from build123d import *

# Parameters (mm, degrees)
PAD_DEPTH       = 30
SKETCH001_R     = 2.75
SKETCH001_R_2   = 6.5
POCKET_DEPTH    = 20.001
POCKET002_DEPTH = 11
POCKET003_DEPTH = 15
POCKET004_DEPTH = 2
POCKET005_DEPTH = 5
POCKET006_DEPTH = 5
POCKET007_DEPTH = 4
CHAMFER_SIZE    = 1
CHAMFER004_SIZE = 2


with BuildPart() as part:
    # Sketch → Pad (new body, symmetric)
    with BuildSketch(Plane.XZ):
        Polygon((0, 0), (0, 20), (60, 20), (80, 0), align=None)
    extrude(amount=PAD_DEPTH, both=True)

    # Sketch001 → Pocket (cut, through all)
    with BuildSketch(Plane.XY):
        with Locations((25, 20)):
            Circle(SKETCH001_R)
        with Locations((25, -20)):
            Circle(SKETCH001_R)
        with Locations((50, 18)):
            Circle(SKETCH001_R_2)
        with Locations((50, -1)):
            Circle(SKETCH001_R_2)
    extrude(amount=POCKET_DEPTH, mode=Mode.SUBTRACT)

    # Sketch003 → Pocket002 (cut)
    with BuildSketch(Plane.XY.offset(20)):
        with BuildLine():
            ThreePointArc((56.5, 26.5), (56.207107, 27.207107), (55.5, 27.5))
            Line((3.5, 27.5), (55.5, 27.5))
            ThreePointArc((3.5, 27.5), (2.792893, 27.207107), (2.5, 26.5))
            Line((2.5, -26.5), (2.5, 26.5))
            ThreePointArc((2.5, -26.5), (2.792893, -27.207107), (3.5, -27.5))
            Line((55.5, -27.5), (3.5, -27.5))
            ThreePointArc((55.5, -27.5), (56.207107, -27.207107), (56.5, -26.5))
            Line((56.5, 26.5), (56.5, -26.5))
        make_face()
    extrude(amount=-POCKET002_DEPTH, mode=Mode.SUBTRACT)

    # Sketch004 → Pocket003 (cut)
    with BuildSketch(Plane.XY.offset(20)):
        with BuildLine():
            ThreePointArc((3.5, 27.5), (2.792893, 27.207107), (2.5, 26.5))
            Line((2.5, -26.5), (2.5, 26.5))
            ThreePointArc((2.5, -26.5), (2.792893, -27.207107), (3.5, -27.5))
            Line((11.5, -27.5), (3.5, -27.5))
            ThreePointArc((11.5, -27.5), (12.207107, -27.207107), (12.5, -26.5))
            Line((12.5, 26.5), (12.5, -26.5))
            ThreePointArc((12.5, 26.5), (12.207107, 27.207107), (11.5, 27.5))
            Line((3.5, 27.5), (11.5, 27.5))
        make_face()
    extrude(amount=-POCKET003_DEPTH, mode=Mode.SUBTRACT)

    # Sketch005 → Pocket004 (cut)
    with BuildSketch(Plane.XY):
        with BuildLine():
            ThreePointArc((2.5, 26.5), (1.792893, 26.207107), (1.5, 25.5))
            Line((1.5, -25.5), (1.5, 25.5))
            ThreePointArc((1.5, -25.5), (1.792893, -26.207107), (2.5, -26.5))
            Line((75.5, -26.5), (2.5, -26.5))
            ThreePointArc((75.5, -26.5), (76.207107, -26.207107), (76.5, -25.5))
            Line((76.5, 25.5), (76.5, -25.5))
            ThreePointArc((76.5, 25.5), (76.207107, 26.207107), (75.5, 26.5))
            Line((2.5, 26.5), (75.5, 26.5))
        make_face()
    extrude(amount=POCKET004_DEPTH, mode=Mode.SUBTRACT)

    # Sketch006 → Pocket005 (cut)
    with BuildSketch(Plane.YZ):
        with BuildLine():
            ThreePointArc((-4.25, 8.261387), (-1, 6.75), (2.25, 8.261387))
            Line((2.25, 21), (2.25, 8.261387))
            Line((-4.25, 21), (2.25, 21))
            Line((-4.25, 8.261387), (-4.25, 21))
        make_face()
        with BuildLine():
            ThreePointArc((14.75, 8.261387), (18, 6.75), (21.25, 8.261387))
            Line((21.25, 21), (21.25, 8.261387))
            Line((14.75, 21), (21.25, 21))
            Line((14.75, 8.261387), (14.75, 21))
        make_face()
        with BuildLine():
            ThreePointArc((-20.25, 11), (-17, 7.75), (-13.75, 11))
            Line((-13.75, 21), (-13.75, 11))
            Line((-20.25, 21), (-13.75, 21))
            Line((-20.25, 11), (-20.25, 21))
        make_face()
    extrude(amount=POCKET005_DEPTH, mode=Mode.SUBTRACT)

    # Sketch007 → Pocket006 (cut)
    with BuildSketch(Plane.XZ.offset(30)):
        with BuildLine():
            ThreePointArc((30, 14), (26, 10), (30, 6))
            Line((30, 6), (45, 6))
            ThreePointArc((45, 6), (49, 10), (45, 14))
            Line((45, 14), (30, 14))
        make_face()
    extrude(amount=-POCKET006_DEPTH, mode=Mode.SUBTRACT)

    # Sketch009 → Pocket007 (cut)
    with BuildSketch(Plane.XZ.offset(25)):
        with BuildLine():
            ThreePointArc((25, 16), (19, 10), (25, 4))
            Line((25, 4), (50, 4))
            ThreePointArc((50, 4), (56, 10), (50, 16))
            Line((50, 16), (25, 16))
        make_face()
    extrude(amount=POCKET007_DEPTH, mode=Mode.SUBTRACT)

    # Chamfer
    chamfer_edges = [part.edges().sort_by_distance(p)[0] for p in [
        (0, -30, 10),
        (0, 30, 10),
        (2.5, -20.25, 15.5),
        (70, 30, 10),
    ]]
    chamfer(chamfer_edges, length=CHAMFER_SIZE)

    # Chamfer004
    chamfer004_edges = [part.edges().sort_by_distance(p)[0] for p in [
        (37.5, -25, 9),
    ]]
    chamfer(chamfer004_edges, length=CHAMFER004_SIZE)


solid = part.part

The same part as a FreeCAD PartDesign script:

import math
import FreeCAD as App
import Part
import Sketcher

V = App.Vector
Q = App.Units.Quantity


def edges_at(feature, points):
    """Names of the edges that pass closest to the given points."""
    edges = feature.Shape.Edges
    near = lambda p: min(range(len(edges)), key=lambda i: edges[i].distToShape(Part.Vertex(*p))[0])
    return sorted({f"Edge{near(p) + 1}" for p in points})

doc = App.newDocument("Part")
body = doc.addObject("PartDesign::Body", "Body")

sketch1 = body.newObject("Sketcher::SketchObject", "Sketch")
sketch1.AttachmentSupport = (doc.getObject("XZ_Plane"), [""])
sketch1.MapMode = "FlatFace"
sketch1.addGeometry(Part.LineSegment(V(0, 20, 0), V(0, 0, 0)), False)
sketch1.addGeometry(Part.LineSegment(V(0, 0, 0), V(80, 0, 0)), False)
sketch1.addGeometry(Part.LineSegment(V(80, 0, 0), V(60, 20, 0)), False)
sketch1.addGeometry(Part.LineSegment(V(60, 20, 0), V(0, 20, 0)), False)
sketch1.addConstraint(Sketcher.Constraint("Coincident", 0, 2, 1, 1))
sketch1.addConstraint(Sketcher.Constraint("Coincident", 1, 2, 2, 1))
sketch1.addConstraint(Sketcher.Constraint("Coincident", 2, 2, 3, 1))
sketch1.addConstraint(Sketcher.Constraint("Coincident", 3, 2, 0, 1))
sketch1.addConstraint(Sketcher.Constraint("Vertical", 0))
sketch1.addConstraint(Sketcher.Constraint("Horizontal", 1))
sketch1.addConstraint(Sketcher.Constraint("Horizontal", 3))
sketch1.addConstraint(Sketcher.Constraint("Coincident", 0, 2, -1, 1))
sketch1.addConstraint(Sketcher.Constraint("DistanceX", 1, 1, 1, 2, Q("80 mm")))
sketch1.addConstraint(Sketcher.Constraint("DistanceX", 3, 2, 3, 1, Q("60 mm")))
sketch1.addConstraint(Sketcher.Constraint("DistanceY", 0, 2, 0, 1, Q("20 mm")))
pad1 = body.newObject("PartDesign::Pad", "Pad")
pad1.Profile = sketch1
pad1.Length = 60
pad1.Midplane = True

sketch2 = body.newObject("Sketcher::SketchObject", "Sketch001")
sketch2.AttachmentSupport = (doc.getObject("XY_Plane"), [""])
sketch2.MapMode = "FlatFace"
sketch2.addGeometry(Part.Circle(V(25, 20, 0), V(0, 0, 1), 2.8), False)
sketch2.addGeometry(Part.Circle(V(25, -20, 0), V(0, 0, 1), 2.8), False)
sketch2.addGeometry(Part.Circle(V(50, 18, 0), V(0, 0, 1), 6.5), False)
sketch2.addGeometry(Part.Circle(V(50, -1, 0), V(0, 0, 1), 6.5), False)
sketch2.addConstraint(Sketcher.Constraint("Equal", 0, 1))
sketch2.addConstraint(Sketcher.Constraint("Equal", 2, 3))
sketch2.addConstraint(Sketcher.Constraint("Symmetric", 0, 3, 1, 3, -1))
sketch2.addConstraint(Sketcher.Constraint("Vertical", 2, 3, 3, 3))
sketch2.addConstraint(Sketcher.Constraint("Diameter", 2, Q("13 mm")))
sketch2.addConstraint(Sketcher.Constraint("Diameter", 0, Q("5.5 mm")))
sketch2.addConstraint(Sketcher.Constraint("DistanceX", -1, 1, 0, 3, Q("25 mm")))
sketch2.addConstraint(Sketcher.Constraint("DistanceY", -1, 1, 0, 3, Q("20 mm")))
sketch2.addConstraint(Sketcher.Constraint("DistanceX", -1, 1, 2, 3, Q("50 mm")))
sketch2.addConstraint(Sketcher.Constraint("DistanceY", -1, 1, 2, 3, Q("18 mm")))
sketch2.addConstraint(Sketcher.Constraint("DistanceY", 3, 3, -1, 1, Q("1 mm")))
pocket1 = body.newObject("PartDesign::Pocket", "Pocket")
pocket1.Profile = sketch2
pocket1.Type = "ThroughAll"
pocket1.Reversed = True

sketch3 = body.newObject("Sketcher::SketchObject", "Sketch002")
sketch3.AttachmentSupport = (doc.getObject("XY_Plane"), [""])
sketch3.MapMode = "FlatFace"
sketch3.AttachmentOffset = App.Placement(V(0, 0, 20), App.Rotation())
sketch3.addGeometry(Part.ArcOfCircle(Part.Circle(V(55.5, 26.5, 0), V(0, 0, 1), 1), math.radians(0), math.radians(90)), False)
sketch3.addGeometry(Part.LineSegment(V(55.5, 27.5, 0), V(3.5, 27.5, 0)), False)
sketch3.addGeometry(Part.ArcOfCircle(Part.Circle(V(3.5, 26.5, 0), V(0, 0, 1), 1), math.radians(90), math.radians(180)), False)
sketch3.addGeometry(Part.LineSegment(V(2.5, 26.5, 0), V(2.5, -26.5, 0)), False)
sketch3.addGeometry(Part.ArcOfCircle(Part.Circle(V(3.5, -26.5, 0), V(0, 0, 1), 1), math.radians(180), math.radians(270)), False)
sketch3.addGeometry(Part.LineSegment(V(3.5, -27.5, 0), V(55.5, -27.5, 0)), False)
sketch3.addGeometry(Part.ArcOfCircle(Part.Circle(V(55.5, -26.5, 0), V(0, 0, 1), 1), math.radians(-90), math.radians(0)), False)
sketch3.addGeometry(Part.LineSegment(V(56.5, -26.5, 0), V(56.5, 26.5, 0)), False)
sketch3.addConstraint(Sketcher.Constraint("Tangent", 0, 2, 1, 1))
sketch3.addConstraint(Sketcher.Constraint("Tangent", 1, 2, 2, 1))
sketch3.addConstraint(Sketcher.Constraint("Tangent", 2, 2, 3, 1))
sketch3.addConstraint(Sketcher.Constraint("Tangent", 3, 2, 4, 1))
sketch3.addConstraint(Sketcher.Constraint("Tangent", 4, 2, 5, 1))
sketch3.addConstraint(Sketcher.Constraint("Tangent", 5, 2, 6, 1))
sketch3.addConstraint(Sketcher.Constraint("Tangent", 6, 2, 7, 1))
sketch3.addConstraint(Sketcher.Constraint("Tangent", 7, 2, 0, 1))
sketch3.addConstraint(Sketcher.Constraint("Horizontal", 1))
sketch3.addConstraint(Sketcher.Constraint("Vertical", 3))
sketch3.addConstraint(Sketcher.Constraint("Horizontal", 5))
sketch3.addConstraint(Sketcher.Constraint("Vertical", 7))
sketch3.addConstraint(Sketcher.Constraint("Equal", 0, 2))
sketch3.addConstraint(Sketcher.Constraint("Equal", 2, 4))
sketch3.addConstraint(Sketcher.Constraint("Equal", 4, 6))
sketch3.addConstraint(Sketcher.Constraint("Radius", 0, Q("0.999999 mm")))
sketch3.addConstraint(Sketcher.Constraint("DistanceX", 1, 2, 1, 1, Q("52 mm")))
sketch3.addConstraint(Sketcher.Constraint("DistanceY", 3, 2, 3, 1, Q("53 mm")))
sketch3.addConstraint(Sketcher.Constraint("DistanceX", -1, 1, 0, 3, Q("55.500001 mm")))
sketch3.addConstraint(Sketcher.Constraint("DistanceY", -1, 1, 0, 3, Q("26.500001 mm")))
pocket2 = body.newObject("PartDesign::Pocket", "Pocket001")
pocket2.Profile = sketch3
pocket2.Length = 11

sketch4 = body.newObject("Sketcher::SketchObject", "Sketch003")
sketch4.AttachmentSupport = (doc.getObject("XY_Plane"), [""])
sketch4.MapMode = "FlatFace"
sketch4.AttachmentOffset = App.Placement(V(0, 0, 20), App.Rotation())
sketch4.addGeometry(Part.ArcOfCircle(Part.Circle(V(3.5, 26.5, 0), V(0, 0, 1), 1), math.radians(90), math.radians(180)), False)
sketch4.addGeometry(Part.LineSegment(V(2.5, 26.5, 0), V(2.5, -26.5, 0)), False)
sketch4.addGeometry(Part.ArcOfCircle(Part.Circle(V(3.5, -26.5, 0), V(0, 0, 1), 1), math.radians(180), math.radians(270)), False)
sketch4.addGeometry(Part.LineSegment(V(3.5, -27.5, 0), V(11.5, -27.5, 0)), False)
sketch4.addGeometry(Part.ArcOfCircle(Part.Circle(V(11.5, -26.5, 0), V(0, 0, 1), 1), math.radians(-90), math.radians(0)), False)
sketch4.addGeometry(Part.LineSegment(V(12.5, -26.5, 0), V(12.5, 26.5, 0)), False)
sketch4.addGeometry(Part.ArcOfCircle(Part.Circle(V(11.5, 26.5, 0), V(0, 0, 1), 1), math.radians(0), math.radians(90)), False)
sketch4.addGeometry(Part.LineSegment(V(11.5, 27.5, 0), V(3.5, 27.5, 0)), False)
sketch4.addConstraint(Sketcher.Constraint("Tangent", 0, 2, 1, 1))
sketch4.addConstraint(Sketcher.Constraint("Tangent", 1, 2, 2, 1))
sketch4.addConstraint(Sketcher.Constraint("Tangent", 2, 2, 3, 1))
sketch4.addConstraint(Sketcher.Constraint("Tangent", 3, 2, 4, 1))
sketch4.addConstraint(Sketcher.Constraint("Tangent", 4, 2, 5, 1))
sketch4.addConstraint(Sketcher.Constraint("Tangent", 5, 2, 6, 1))
sketch4.addConstraint(Sketcher.Constraint("Tangent", 6, 2, 7, 1))
sketch4.addConstraint(Sketcher.Constraint("Tangent", 7, 2, 0, 1))
sketch4.addConstraint(Sketcher.Constraint("Vertical", 1))
sketch4.addConstraint(Sketcher.Constraint("Horizontal", 3))
sketch4.addConstraint(Sketcher.Constraint("Vertical", 5))
sketch4.addConstraint(Sketcher.Constraint("Horizontal", 7))
sketch4.addConstraint(Sketcher.Constraint("Equal", 0, 2))
sketch4.addConstraint(Sketcher.Constraint("Equal", 2, 4))
sketch4.addConstraint(Sketcher.Constraint("Equal", 4, 6))
sketch4.addConstraint(Sketcher.Constraint("Radius", 0, Q("0.999999 mm")))
sketch4.addConstraint(Sketcher.Constraint("DistanceX", 3, 1, 3, 2, Q("8 mm")))
sketch4.addConstraint(Sketcher.Constraint("DistanceY", 1, 2, 1, 1, Q("53 mm")))
sketch4.addConstraint(Sketcher.Constraint("DistanceX", -1, 1, 0, 3, Q("3.499999 mm")))
sketch4.addConstraint(Sketcher.Constraint("DistanceY", -1, 1, 0, 3, Q("26.500001 mm")))
pocket3 = body.newObject("PartDesign::Pocket", "Pocket002")
pocket3.Profile = sketch4
pocket3.Length = 15

sketch5 = body.newObject("Sketcher::SketchObject", "Sketch004")
sketch5.AttachmentSupport = (doc.getObject("XY_Plane"), [""])
sketch5.MapMode = "FlatFace"
sketch5.addGeometry(Part.ArcOfCircle(Part.Circle(V(2.5, 25.5, 0), V(0, 0, 1), 1), math.radians(90), math.radians(180)), False)
sketch5.addGeometry(Part.LineSegment(V(1.5, 25.5, 0), V(1.5, -25.5, 0)), False)
sketch5.addGeometry(Part.ArcOfCircle(Part.Circle(V(2.5, -25.5, 0), V(0, 0, 1), 1), math.radians(180), math.radians(270)), False)
sketch5.addGeometry(Part.LineSegment(V(2.5, -26.5, 0), V(75.5, -26.5, 0)), False)
sketch5.addGeometry(Part.ArcOfCircle(Part.Circle(V(75.5, -25.5, 0), V(0, 0, 1), 1), math.radians(-90), math.radians(0)), False)
sketch5.addGeometry(Part.LineSegment(V(76.5, -25.5, 0), V(76.5, 25.5, 0)), False)
sketch5.addGeometry(Part.ArcOfCircle(Part.Circle(V(75.5, 25.5, 0), V(0, 0, 1), 1), math.radians(0), math.radians(90)), False)
sketch5.addGeometry(Part.LineSegment(V(75.5, 26.5, 0), V(2.5, 26.5, 0)), False)
sketch5.addConstraint(Sketcher.Constraint("Tangent", 0, 2, 1, 1))
sketch5.addConstraint(Sketcher.Constraint("Tangent", 1, 2, 2, 1))
sketch5.addConstraint(Sketcher.Constraint("Tangent", 2, 2, 3, 1))
sketch5.addConstraint(Sketcher.Constraint("Tangent", 3, 2, 4, 1))
sketch5.addConstraint(Sketcher.Constraint("Tangent", 4, 2, 5, 1))
sketch5.addConstraint(Sketcher.Constraint("Tangent", 5, 2, 6, 1))
sketch5.addConstraint(Sketcher.Constraint("Tangent", 6, 2, 7, 1))
sketch5.addConstraint(Sketcher.Constraint("Tangent", 7, 2, 0, 1))
sketch5.addConstraint(Sketcher.Constraint("Vertical", 1))
sketch5.addConstraint(Sketcher.Constraint("Horizontal", 3))
sketch5.addConstraint(Sketcher.Constraint("Vertical", 5))
sketch5.addConstraint(Sketcher.Constraint("Horizontal", 7))
sketch5.addConstraint(Sketcher.Constraint("Equal", 0, 2))
sketch5.addConstraint(Sketcher.Constraint("Equal", 2, 4))
sketch5.addConstraint(Sketcher.Constraint("Equal", 4, 6))
sketch5.addConstraint(Sketcher.Constraint("Radius", 0, Q("0.999999 mm")))
sketch5.addConstraint(Sketcher.Constraint("DistanceX", 3, 1, 3, 2, Q("73 mm")))
sketch5.addConstraint(Sketcher.Constraint("DistanceY", 1, 2, 1, 1, Q("51 mm")))
sketch5.addConstraint(Sketcher.Constraint("DistanceX", -1, 1, 0, 3, Q("2.499999 mm")))
sketch5.addConstraint(Sketcher.Constraint("DistanceY", -1, 1, 0, 3, Q("25.500001 mm")))
pocket4 = body.newObject("PartDesign::Pocket", "Pocket003")
pocket4.Profile = sketch5
pocket4.Length = 2
pocket4.Reversed = True

sketch6 = body.newObject("Sketcher::SketchObject", "Sketch005")
sketch6.AttachmentSupport = (doc.getObject("YZ_Plane"), [""])
sketch6.MapMode = "FlatFace"
sketch6.addGeometry(Part.ArcOfCircle(Part.Circle(V(-1, 11, 0), V(0, 0, 1), 4.3), math.radians(-140), math.radians(-40)), False)
sketch6.addGeometry(Part.LineSegment(V(2.2, 8.3, 0), V(2.2, 21, 0)), False)
sketch6.addGeometry(Part.LineSegment(V(2.2, 21, 0), V(-4.2, 21, 0)), False)
sketch6.addGeometry(Part.LineSegment(V(-4.2, 21, 0), V(-4.2, 8.3, 0)), False)
sketch6.addGeometry(Part.ArcOfCircle(Part.Circle(V(18, 11, 0), V(0, 0, 1), 4.3), math.radians(-140), math.radians(-40)), False)
sketch6.addGeometry(Part.LineSegment(V(21.2, 8.3, 0), V(21.2, 21, 0)), False)
sketch6.addGeometry(Part.LineSegment(V(21.2, 21, 0), V(14.8, 21, 0)), False)
sketch6.addGeometry(Part.LineSegment(V(14.8, 21, 0), V(14.8, 8.3, 0)), False)
sketch6.addGeometry(Part.ArcOfCircle(Part.Circle(V(-17, 11, 0), V(0, 0, 1), 3.2), math.radians(180), math.radians(360)), False)
sketch6.addGeometry(Part.LineSegment(V(-13.8, 11, 0), V(-13.8, 21, 0)), False)
sketch6.addGeometry(Part.LineSegment(V(-13.8, 21, 0), V(-20.2, 21, 0)), False)
sketch6.addGeometry(Part.LineSegment(V(-20.2, 21, 0), V(-20.2, 11, 0)), False)
sketch6.addConstraint(Sketcher.Constraint("Coincident", 0, 2, 1, 1))
sketch6.addConstraint(Sketcher.Constraint("Coincident", 1, 2, 2, 1))
sketch6.addConstraint(Sketcher.Constraint("Coincident", 2, 2, 3, 1))
sketch6.addConstraint(Sketcher.Constraint("Coincident", 3, 2, 0, 1))
sketch6.addConstraint(Sketcher.Constraint("Coincident", 4, 2, 5, 1))
sketch6.addConstraint(Sketcher.Constraint("Coincident", 5, 2, 6, 1))
sketch6.addConstraint(Sketcher.Constraint("Coincident", 6, 2, 7, 1))
sketch6.addConstraint(Sketcher.Constraint("Coincident", 7, 2, 4, 1))
sketch6.addConstraint(Sketcher.Constraint("Tangent", 8, 2, 9, 1))
sketch6.addConstraint(Sketcher.Constraint("Coincident", 9, 2, 10, 1))
sketch6.addConstraint(Sketcher.Constraint("Coincident", 10, 2, 11, 1))
sketch6.addConstraint(Sketcher.Constraint("Tangent", 11, 2, 8, 1))
sketch6.addConstraint(Sketcher.Constraint("Vertical", 1))
sketch6.addConstraint(Sketcher.Constraint("Horizontal", 2))
sketch6.addConstraint(Sketcher.Constraint("Vertical", 3))
sketch6.addConstraint(Sketcher.Constraint("Vertical", 5))
sketch6.addConstraint(Sketcher.Constraint("Horizontal", 6))
sketch6.addConstraint(Sketcher.Constraint("Vertical", 7))
sketch6.addConstraint(Sketcher.Constraint("Vertical", 9))
sketch6.addConstraint(Sketcher.Constraint("Horizontal", 10))
sketch6.addConstraint(Sketcher.Constraint("Vertical", 11))
sketch6.addConstraint(Sketcher.Constraint("Equal", 0, 4))
sketch6.addConstraint(Sketcher.Constraint("Horizontal", 0, 3, 4, 3))
sketch6.addConstraint(Sketcher.Constraint("Horizontal", 4, 3, 8, 3))
sketch6.addConstraint(Sketcher.Constraint("Horizontal", 0, 2, 3, 2))
sketch6.addConstraint(Sketcher.Constraint("Horizontal", 3, 2, 4, 2))
sketch6.addConstraint(Sketcher.Constraint("Horizontal", 2, 2, 5, 2))
sketch6.addConstraint(Sketcher.Constraint("Horizontal", 4, 2, 7, 2))
sketch6.addConstraint(Sketcher.Constraint("Horizontal", 6, 2, 9, 2))
sketch6.addConstraint(Sketcher.Constraint("Equal", 6, 10))
sketch6.addConstraint(Sketcher.Constraint("DistanceY", 9, 1, 9, 2, Q("10 mm")))
sketch6.addConstraint(Sketcher.Constraint("Radius", 0, Q("4.25 mm")))
sketch6.addConstraint(Sketcher.Constraint("Radius", 8, Q("3.25 mm")))
sketch6.addConstraint(Sketcher.Constraint("DistanceX", 0, 3, -1, 1, Q("1 mm")))
sketch6.addConstraint(Sketcher.Constraint("DistanceY", -1, 1, 0, 3, Q("11 mm")))
sketch6.addConstraint(Sketcher.Constraint("DistanceX", -1, 1, 4, 3, Q("18 mm")))
sketch6.addConstraint(Sketcher.Constraint("DistanceX", 8, 3, -1, 1, Q("17 mm")))
pocket5 = body.newObject("PartDesign::Pocket", "Pocket004")
pocket5.Profile = sketch6
pocket5.Length = 5
pocket5.Reversed = True

sketch7 = body.newObject("Sketcher::SketchObject", "Sketch006")
sketch7.AttachmentSupport = (doc.getObject("XZ_Plane"), [""])
sketch7.MapMode = "FlatFace"
sketch7.AttachmentOffset = App.Placement(V(0, 0, 30), App.Rotation())
sketch7.addGeometry(Part.ArcOfCircle(Part.Circle(V(30, 10, 0), V(0, 0, 1), 4), math.radians(90), math.radians(270)), False)
sketch7.addGeometry(Part.LineSegment(V(30, 6, 0), V(45, 6, 0)), False)
sketch7.addGeometry(Part.ArcOfCircle(Part.Circle(V(45, 10, 0), V(0, 0, 1), 4), math.radians(-90), math.radians(90)), False)
sketch7.addGeometry(Part.LineSegment(V(45, 14, 0), V(30, 14, 0)), False)
sketch7.addConstraint(Sketcher.Constraint("Tangent", 0, 2, 1, 1))
sketch7.addConstraint(Sketcher.Constraint("Tangent", 1, 2, 2, 1))
sketch7.addConstraint(Sketcher.Constraint("Tangent", 2, 2, 3, 1))
sketch7.addConstraint(Sketcher.Constraint("Tangent", 3, 2, 0, 1))
sketch7.addConstraint(Sketcher.Constraint("Horizontal", 1))
sketch7.addConstraint(Sketcher.Constraint("Horizontal", 3))
sketch7.addConstraint(Sketcher.Constraint("Radius", 0, Q("4 mm")))
sketch7.addConstraint(Sketcher.Constraint("DistanceX", 1, 1, 1, 2, Q("15 mm")))
sketch7.addConstraint(Sketcher.Constraint("DistanceX", -1, 1, 0, 3, Q("30 mm")))
sketch7.addConstraint(Sketcher.Constraint("DistanceY", -1, 1, 0, 3, Q("10 mm")))
pocket6 = body.newObject("PartDesign::Pocket", "Pocket005")
pocket6.Profile = sketch7
pocket6.Length = 5

sketch8 = body.newObject("Sketcher::SketchObject", "Sketch007")
sketch8.AttachmentSupport = (doc.getObject("XZ_Plane"), [""])
sketch8.MapMode = "FlatFace"
sketch8.AttachmentOffset = App.Placement(V(0, 0, 25), App.Rotation())
sketch8.addGeometry(Part.ArcOfCircle(Part.Circle(V(25, 10, 0), V(0, 0, 1), 6), math.radians(90), math.radians(270)), False)
sketch8.addGeometry(Part.LineSegment(V(25, 4, 0), V(50, 4, 0)), False)
sketch8.addGeometry(Part.ArcOfCircle(Part.Circle(V(50, 10, 0), V(0, 0, 1), 6), math.radians(-90), math.radians(90)), False)
sketch8.addGeometry(Part.LineSegment(V(50, 16, 0), V(25, 16, 0)), False)
sketch8.addConstraint(Sketcher.Constraint("Tangent", 0, 2, 1, 1))
sketch8.addConstraint(Sketcher.Constraint("Tangent", 1, 2, 2, 1))
sketch8.addConstraint(Sketcher.Constraint("Tangent", 2, 2, 3, 1))
sketch8.addConstraint(Sketcher.Constraint("Tangent", 3, 2, 0, 1))
sketch8.addConstraint(Sketcher.Constraint("Horizontal", 1))
sketch8.addConstraint(Sketcher.Constraint("Horizontal", 3))
sketch8.addConstraint(Sketcher.Constraint("Radius", 0, Q("6 mm")))
sketch8.addConstraint(Sketcher.Constraint("DistanceX", 1, 1, 1, 2, Q("25 mm")))
sketch8.addConstraint(Sketcher.Constraint("DistanceX", -1, 1, 0, 3, Q("25 mm")))
sketch8.addConstraint(Sketcher.Constraint("DistanceY", -1, 1, 0, 3, Q("10 mm")))
pocket7 = body.newObject("PartDesign::Pocket", "Pocket006")
pocket7.Profile = sketch8
pocket7.Length = 4
pocket7.Reversed = True
doc.recompute()

chamfer = body.newObject("PartDesign::Chamfer", "Chamfer")
chamfer.Base = (pocket7, edges_at(pocket7, [
    (0, -30, 10),
    (0, 30, 10),
    (2.5, -20.25, 15.5),
    (70, 30, 10),
]))
chamfer.Size = 1
doc.recompute()

chamfer2 = body.newObject("PartDesign::Chamfer", "Chamfer001")
chamfer2.Base = (chamfer, edges_at(chamfer, [(37.5, -25, 9)]))
chamfer2.Size = 2

doc.recompute()
